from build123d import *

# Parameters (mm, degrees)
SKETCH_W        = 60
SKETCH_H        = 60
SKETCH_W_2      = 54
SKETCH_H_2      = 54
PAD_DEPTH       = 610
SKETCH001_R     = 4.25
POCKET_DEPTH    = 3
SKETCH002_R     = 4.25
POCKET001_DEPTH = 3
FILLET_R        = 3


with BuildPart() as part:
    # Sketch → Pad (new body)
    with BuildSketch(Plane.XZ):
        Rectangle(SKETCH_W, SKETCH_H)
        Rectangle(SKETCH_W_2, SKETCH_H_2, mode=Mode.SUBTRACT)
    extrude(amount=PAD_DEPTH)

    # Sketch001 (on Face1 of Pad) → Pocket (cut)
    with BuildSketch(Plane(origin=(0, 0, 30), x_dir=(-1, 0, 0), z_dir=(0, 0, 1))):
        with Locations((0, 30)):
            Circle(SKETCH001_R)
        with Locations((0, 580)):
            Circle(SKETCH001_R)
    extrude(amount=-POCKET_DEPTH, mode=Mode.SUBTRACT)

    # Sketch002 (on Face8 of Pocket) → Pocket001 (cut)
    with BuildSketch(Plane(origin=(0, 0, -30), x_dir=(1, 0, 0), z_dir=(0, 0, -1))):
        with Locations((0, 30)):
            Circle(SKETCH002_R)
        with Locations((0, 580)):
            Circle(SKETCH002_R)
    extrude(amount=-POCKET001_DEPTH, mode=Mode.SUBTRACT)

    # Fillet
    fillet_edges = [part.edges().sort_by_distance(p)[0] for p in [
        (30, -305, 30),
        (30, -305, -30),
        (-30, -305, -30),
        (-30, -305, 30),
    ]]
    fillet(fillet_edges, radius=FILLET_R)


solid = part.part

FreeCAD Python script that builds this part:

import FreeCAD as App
import Part
import Sketcher

V = App.Vector
Q = App.Units.Quantity


def edges_at(feature, points):
    """Names of the edges that pass closest to the given points."""
    edges = feature.Shape.Edges
    near = lambda p: min(range(len(edges)), key=lambda i: edges[i].distToShape(Part.Vertex(*p))[0])
    return sorted({f"Edge{near(p) + 1}" for p in points})


def add_polygon(sketch, points):
    """Adds a closed chain of lines whose ends are joined by coincident constraints."""
    first, n = sketch.GeometryCount, len(points)
    for a, b in zip(points, points[1:] + points[:1]):
        sketch.addGeometry(Part.LineSegment(App.Vector(*a, 0), App.Vector(*b, 0)), False)
    for i in range(n):
        sketch.addConstraint(Sketcher.Constraint("Coincident", first + i, 2, first + (i + 1) % n, 1))

doc = App.newDocument("Part")
params = doc.addObject("Spreadsheet::Sheet", "Params")
for row, (alias, value) in enumerate([
    ("sketch1_width", "60 mm"),
    ("sketch1_width2", "54 mm"),
    ("pad1_length", "610 mm"),
    ("sketch2_diameter", "8.5 mm"),
    ("pocket1_length", "3 mm"),
    ("sketch3_diameter", "8.5 mm"),
    ("pocket2_length", "3 mm"),
    ("fillet_radius", "3 mm"),
], start=1):
    params.set(f"A{row}", alias)
    params.set(f"B{row}", "=" + value)
    params.setAlias(f"B{row}", alias)

body = doc.addObject("PartDesign::Body", "Body")

# Sketch on XZ plane
sketch1 = doc.addObject("Sketcher::SketchObject", "Sketch")
body.addObject(sketch1)
sketch1.AttachmentSupport = (doc.XZ_Plane, [""])
sketch1.MapMode = "FlatFace"
add_polygon(sketch1, [(-30, 30), (-30, -30), (30, -30), (30, 30)])  # lines 0-3
add_polygon(sketch1, [(27, -27), (-27, -27), (-27, 27), (27, 27)])  # lines 4-7
sketch1.addConstraint(Sketcher.Constraint("Vertical", 0))
sketch1.addConstraint(Sketcher.Constraint("Horizontal", 1))
sketch1.addConstraint(Sketcher.Constraint("Vertical", 2))
sketch1.addConstraint(Sketcher.Constraint("Horizontal", 3))
sketch1.addConstraint(Sketcher.Constraint("Horizontal", 4))
sketch1.addConstraint(Sketcher.Constraint("Vertical", 5))
sketch1.addConstraint(Sketcher.Constraint("Horizontal", 6))
sketch1.addConstraint(Sketcher.Constraint("Vertical", 7))
sketch1.addConstraint(Sketcher.Constraint("Symmetric", 0, 2, 2, 2, -1, 1))
sketch1.addConstraint(Sketcher.Constraint("Symmetric", 4, 2, 6, 2, -1, 1))
sketch1.addConstraint(Sketcher.Constraint("Equal", 3, 0))
sketch1.addConstraint(Sketcher.Constraint("Equal", 6, 5))
sketch1.addConstraint(Sketcher.Constraint("DistanceX", 1, 1, 1, 2, Q("60 mm")))
sketch1.addConstraint(Sketcher.Constraint("DistanceX", 4, 2, 4, 1, Q("54 mm")))
sketch1.setExpression("Constraints[20]", "Params.sketch1_width")
sketch1.setExpression("Constraints[21]", "Params.sketch1_width2")
pad1 = doc.addObject("PartDesign::Pad", "Pad")
body.addObject(pad1)
pad1.Profile = sketch1
pad1.setExpression("Length", "Params.pad1_length")

# Sketch on XY plane
sketch2 = doc.addObject("Sketcher::SketchObject", "Sketch001")
body.addObject(sketch2)
sketch2.AttachmentSupport = (doc.XY_Plane, [""])
sketch2.MapMode = "FlatFace"
sketch2.AttachmentOffset = App.Placement(V(0, 0, 30), App.Rotation())
sketch2.addGeometry(Part.Circle(V(0, -30, 0), V(0, 0, 1), 4.2), False)
sketch2.addGeometry(Part.Circle(V(0, -580, 0), V(0, 0, 1), 4.2), False)
sketch2.addConstraint(Sketcher.Constraint("Equal", 0, 1))
sketch2.addConstraint(Sketcher.Constraint("PointOnObject", 0, 3, -2))
sketch2.addConstraint(Sketcher.Constraint("PointOnObject", 1, 3, -2))
sketch2.addConstraint(Sketcher.Constraint("Diameter", 0, Q("8.5 mm")))
sketch2.addConstraint(Sketcher.Constraint("DistanceY", 0, 3, -1, 1, Q("30 mm")))
sketch2.addConstraint(Sketcher.Constraint("DistanceY", 1, 3, -1, 1, Q("580 mm")))
sketch2.setExpression("Constraints[3]", "Params.sketch2_diameter")
pocket1 = doc.addObject("PartDesign::Pocket", "Pocket")
body.addObject(pocket1)
pocket1.Profile = sketch2
pocket1.setExpression("Length", "Params.pocket1_length")

# Sketch on XY plane
sketch3 = doc.addObject("Sketcher::SketchObject", "Sketch002")
body.addObject(sketch3)
sketch3.AttachmentSupport = (doc.XY_Plane, [""])
sketch3.MapMode = "FlatFace"
sketch3.AttachmentOffset = App.Placement(V(0, 0, -30), App.Rotation())
sketch3.addGeometry(Part.Circle(V(0, -30, 0), V(0, 0, 1), 4.2), False)
sketch3.addGeometry(Part.Circle(V(0, -580, 0), V(0, 0, 1), 4.2), False)
sketch3.addConstraint(Sketcher.Constraint("Equal", 0, 1))
sketch3.addConstraint(Sketcher.Constraint("PointOnObject", 0, 3, -2))
sketch3.addConstraint(Sketcher.Constraint("PointOnObject", 1, 3, -2))
sketch3.addConstraint(Sketcher.Constraint("Diameter", 0, Q("8.5 mm")))
sketch3.addConstraint(Sketcher.Constraint("DistanceY", 0, 3, -1, 1, Q("30 mm")))
sketch3.addConstraint(Sketcher.Constraint("DistanceY", 1, 3, -1, 1, Q("580 mm")))
sketch3.setExpression("Constraints[3]", "Params.sketch3_diameter")
pocket2 = doc.addObject("PartDesign::Pocket", "Pocket001")
body.addObject(pocket2)
pocket2.Profile = sketch3
pocket2.setExpression("Length", "Params.pocket2_length")
pocket2.Reversed = True
doc.recompute()

fillet = doc.addObject("PartDesign::Fillet", "Fillet")
body.addObject(fillet)
fillet.Base = (pocket2, edges_at(pocket2, [
    (30, -305, 30),
    (30, -305, -30),
    (-30, -305, -30),
    (-30, -305, 30),
]))
fillet.setExpression("Radius", "Params.fillet_radius")

doc.recompute()
